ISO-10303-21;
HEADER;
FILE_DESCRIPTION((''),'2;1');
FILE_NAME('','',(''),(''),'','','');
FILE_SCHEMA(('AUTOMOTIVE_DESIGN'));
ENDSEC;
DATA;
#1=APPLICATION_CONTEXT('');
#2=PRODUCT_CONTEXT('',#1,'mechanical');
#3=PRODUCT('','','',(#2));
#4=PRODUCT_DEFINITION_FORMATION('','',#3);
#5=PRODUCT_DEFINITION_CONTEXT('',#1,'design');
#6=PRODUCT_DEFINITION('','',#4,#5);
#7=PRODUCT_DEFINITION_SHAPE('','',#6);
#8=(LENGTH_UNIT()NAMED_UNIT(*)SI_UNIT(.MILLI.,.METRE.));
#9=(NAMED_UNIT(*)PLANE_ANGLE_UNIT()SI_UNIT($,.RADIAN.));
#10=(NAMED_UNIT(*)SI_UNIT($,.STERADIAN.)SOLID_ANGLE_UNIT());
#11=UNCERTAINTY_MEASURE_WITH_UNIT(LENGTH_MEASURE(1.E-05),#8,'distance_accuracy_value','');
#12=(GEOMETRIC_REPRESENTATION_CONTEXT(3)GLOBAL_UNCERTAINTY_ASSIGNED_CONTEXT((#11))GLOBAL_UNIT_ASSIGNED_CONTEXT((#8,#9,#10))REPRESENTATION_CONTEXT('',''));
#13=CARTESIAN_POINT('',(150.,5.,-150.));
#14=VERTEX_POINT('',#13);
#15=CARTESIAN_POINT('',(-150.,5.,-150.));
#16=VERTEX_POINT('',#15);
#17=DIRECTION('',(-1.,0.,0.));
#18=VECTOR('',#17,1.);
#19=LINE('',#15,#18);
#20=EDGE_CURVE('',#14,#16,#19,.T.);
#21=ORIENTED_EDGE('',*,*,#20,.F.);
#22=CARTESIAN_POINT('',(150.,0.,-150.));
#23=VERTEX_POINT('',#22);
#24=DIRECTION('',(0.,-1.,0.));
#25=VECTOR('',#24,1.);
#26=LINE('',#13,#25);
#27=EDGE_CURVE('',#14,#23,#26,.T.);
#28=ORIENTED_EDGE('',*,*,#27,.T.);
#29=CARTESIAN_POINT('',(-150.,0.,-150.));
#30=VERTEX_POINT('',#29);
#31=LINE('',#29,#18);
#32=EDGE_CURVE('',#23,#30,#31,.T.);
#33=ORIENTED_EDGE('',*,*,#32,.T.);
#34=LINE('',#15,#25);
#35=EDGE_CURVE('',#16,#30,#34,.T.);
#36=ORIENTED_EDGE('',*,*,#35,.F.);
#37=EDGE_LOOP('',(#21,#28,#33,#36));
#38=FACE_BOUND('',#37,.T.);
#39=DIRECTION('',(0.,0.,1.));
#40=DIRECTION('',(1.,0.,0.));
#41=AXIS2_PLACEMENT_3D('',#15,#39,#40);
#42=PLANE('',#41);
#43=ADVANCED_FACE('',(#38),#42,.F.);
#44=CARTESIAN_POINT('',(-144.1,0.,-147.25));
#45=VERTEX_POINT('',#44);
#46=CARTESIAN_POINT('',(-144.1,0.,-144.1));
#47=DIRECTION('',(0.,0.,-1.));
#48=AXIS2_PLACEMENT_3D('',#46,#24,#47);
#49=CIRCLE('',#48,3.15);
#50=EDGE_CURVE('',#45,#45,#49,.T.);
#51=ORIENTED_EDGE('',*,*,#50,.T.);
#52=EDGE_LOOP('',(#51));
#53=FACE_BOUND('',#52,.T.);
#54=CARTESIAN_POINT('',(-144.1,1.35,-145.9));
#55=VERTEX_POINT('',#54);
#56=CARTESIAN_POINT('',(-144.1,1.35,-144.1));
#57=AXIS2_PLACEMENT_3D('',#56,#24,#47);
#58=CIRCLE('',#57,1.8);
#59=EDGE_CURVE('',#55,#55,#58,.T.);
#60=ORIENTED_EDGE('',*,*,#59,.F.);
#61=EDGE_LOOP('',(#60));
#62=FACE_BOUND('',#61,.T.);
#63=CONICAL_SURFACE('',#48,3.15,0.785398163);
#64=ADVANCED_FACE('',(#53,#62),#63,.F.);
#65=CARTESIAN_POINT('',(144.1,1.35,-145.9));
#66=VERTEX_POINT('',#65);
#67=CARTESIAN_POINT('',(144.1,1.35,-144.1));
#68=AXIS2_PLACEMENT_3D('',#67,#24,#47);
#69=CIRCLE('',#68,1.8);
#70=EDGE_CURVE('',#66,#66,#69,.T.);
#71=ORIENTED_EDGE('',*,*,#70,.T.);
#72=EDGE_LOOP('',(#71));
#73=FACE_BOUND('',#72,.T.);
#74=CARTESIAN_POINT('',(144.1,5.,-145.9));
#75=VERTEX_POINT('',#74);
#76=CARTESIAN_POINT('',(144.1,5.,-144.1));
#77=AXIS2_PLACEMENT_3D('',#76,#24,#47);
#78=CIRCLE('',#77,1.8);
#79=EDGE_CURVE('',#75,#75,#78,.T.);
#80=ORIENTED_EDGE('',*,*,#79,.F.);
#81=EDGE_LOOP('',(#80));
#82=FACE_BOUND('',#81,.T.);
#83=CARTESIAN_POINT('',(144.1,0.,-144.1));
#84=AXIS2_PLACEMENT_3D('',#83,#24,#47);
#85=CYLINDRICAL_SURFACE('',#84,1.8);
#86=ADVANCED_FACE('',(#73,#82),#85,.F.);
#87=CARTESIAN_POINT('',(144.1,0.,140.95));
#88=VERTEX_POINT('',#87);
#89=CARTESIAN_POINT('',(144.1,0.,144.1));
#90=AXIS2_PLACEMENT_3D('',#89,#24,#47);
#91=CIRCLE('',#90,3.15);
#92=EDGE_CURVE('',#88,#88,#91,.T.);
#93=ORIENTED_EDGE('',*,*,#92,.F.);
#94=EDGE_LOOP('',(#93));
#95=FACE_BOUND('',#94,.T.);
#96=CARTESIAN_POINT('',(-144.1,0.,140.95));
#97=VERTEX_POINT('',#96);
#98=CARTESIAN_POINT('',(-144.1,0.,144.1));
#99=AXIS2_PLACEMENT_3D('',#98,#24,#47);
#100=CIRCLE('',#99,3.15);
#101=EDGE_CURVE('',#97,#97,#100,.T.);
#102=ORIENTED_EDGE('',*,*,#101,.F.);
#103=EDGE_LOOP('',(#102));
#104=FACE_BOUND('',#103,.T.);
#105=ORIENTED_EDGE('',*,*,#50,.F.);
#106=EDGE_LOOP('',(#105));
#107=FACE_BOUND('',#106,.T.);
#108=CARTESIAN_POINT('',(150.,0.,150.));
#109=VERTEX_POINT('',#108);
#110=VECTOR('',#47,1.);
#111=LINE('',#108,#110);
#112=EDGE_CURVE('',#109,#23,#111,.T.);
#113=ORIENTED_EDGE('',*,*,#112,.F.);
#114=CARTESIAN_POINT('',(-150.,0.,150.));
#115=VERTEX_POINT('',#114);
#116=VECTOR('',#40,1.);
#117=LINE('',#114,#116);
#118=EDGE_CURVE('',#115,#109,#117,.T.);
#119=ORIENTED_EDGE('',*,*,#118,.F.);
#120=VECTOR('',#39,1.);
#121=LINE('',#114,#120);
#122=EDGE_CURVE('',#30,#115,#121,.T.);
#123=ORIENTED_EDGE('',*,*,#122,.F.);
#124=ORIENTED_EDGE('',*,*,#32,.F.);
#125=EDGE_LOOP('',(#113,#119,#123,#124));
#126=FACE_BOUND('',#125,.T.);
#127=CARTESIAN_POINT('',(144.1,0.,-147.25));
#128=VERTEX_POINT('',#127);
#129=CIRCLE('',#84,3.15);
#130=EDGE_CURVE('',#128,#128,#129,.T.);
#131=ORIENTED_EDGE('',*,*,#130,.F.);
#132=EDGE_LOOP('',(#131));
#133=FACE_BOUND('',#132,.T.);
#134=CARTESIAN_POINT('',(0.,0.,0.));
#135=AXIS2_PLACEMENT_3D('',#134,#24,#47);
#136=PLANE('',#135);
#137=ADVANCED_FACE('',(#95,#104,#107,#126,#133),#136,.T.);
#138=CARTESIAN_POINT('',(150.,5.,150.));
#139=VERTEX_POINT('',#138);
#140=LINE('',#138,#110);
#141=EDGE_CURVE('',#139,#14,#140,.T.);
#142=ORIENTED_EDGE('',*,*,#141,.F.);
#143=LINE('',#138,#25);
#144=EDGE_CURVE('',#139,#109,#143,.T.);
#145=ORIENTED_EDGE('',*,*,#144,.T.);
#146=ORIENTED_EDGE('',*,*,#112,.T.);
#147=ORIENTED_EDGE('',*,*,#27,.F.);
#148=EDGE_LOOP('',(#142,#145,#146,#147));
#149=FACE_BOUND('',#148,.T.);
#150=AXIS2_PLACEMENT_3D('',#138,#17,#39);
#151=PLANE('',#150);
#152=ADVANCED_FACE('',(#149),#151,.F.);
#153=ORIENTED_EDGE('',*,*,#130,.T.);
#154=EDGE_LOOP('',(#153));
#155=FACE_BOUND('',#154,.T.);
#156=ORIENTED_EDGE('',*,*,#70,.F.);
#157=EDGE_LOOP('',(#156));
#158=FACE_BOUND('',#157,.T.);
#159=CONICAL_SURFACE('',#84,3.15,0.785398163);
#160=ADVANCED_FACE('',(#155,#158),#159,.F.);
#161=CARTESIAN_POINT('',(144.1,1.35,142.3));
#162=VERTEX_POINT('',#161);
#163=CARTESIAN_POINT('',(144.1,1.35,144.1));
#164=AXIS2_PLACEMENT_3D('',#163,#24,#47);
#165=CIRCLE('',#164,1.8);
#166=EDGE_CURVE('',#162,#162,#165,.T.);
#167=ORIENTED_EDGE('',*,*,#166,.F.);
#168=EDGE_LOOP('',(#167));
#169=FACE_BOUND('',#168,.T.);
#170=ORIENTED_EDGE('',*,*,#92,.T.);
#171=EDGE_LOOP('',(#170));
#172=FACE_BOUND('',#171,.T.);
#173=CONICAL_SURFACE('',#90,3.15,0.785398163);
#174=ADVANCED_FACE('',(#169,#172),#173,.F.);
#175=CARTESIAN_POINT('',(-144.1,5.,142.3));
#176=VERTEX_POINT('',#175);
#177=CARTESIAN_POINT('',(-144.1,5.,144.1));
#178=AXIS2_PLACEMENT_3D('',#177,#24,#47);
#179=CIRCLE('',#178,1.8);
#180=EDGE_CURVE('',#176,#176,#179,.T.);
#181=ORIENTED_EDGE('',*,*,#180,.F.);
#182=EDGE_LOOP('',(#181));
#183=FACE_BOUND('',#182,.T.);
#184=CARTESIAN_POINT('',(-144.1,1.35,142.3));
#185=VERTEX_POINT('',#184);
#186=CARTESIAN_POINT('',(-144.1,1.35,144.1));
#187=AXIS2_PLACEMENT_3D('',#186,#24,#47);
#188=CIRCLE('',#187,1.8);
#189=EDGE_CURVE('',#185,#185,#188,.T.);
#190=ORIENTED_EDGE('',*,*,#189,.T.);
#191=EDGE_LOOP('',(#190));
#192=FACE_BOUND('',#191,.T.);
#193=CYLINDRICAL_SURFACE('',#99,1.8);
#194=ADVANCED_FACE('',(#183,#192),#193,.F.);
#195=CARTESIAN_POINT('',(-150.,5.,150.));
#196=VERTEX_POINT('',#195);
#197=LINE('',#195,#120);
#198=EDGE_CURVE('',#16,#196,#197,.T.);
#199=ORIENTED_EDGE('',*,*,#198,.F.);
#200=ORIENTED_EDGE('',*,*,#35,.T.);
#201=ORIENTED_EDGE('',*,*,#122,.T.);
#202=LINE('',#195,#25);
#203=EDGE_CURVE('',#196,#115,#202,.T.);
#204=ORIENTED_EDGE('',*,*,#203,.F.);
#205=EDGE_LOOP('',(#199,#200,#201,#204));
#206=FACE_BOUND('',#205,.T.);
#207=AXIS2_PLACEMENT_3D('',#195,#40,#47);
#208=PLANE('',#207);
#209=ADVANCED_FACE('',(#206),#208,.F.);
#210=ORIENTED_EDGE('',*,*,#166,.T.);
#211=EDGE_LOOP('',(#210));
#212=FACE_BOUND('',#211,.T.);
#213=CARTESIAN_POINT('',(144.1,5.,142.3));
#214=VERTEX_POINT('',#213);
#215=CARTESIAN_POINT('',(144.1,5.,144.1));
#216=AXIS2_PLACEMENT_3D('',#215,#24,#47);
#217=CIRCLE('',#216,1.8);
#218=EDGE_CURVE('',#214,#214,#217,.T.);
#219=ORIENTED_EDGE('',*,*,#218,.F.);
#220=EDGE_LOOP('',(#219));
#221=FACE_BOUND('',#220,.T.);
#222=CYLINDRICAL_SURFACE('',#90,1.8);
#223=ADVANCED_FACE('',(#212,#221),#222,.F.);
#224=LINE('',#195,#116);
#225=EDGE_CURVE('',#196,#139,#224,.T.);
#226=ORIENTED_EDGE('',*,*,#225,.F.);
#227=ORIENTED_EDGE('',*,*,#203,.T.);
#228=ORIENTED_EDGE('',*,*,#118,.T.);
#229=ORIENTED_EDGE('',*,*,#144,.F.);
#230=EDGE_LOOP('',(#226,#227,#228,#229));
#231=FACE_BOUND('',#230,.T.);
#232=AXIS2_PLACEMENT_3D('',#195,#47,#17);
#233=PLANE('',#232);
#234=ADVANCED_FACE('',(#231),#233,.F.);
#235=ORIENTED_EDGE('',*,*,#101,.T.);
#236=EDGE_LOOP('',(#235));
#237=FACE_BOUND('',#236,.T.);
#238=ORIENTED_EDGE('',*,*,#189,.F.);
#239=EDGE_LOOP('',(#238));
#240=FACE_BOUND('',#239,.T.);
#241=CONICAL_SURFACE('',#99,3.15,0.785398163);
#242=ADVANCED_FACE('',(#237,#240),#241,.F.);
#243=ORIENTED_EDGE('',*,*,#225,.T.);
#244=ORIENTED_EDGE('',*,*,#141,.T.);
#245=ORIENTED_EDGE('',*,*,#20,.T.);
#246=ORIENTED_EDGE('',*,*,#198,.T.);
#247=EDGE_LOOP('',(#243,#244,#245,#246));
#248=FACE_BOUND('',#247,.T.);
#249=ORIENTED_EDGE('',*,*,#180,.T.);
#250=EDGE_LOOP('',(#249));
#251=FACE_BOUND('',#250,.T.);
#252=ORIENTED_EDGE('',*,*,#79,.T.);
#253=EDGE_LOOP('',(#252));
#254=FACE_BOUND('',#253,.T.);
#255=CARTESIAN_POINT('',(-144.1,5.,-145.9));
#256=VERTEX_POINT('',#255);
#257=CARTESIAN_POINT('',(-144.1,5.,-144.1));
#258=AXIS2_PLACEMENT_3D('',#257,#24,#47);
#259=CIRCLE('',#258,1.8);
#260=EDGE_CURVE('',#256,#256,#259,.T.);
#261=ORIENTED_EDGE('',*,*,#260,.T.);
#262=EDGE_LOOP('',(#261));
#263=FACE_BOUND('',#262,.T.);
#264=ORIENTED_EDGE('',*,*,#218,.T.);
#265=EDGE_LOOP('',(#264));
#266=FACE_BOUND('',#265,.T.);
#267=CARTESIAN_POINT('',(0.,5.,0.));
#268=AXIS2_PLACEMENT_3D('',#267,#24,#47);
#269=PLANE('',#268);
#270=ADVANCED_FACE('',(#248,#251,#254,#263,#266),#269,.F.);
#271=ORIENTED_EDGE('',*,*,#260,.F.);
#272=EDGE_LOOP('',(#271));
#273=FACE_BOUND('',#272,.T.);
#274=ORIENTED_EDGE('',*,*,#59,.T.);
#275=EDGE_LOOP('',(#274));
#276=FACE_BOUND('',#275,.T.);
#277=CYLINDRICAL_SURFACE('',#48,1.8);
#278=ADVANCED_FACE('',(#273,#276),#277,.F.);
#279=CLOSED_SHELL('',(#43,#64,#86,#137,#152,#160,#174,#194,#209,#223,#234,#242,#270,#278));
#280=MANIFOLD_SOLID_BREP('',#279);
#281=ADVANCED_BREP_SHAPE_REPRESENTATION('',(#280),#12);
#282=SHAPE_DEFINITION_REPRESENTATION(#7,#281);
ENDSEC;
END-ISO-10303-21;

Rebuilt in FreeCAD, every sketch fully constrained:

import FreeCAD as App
import Part
import Sketcher

V = App.Vector
Q = App.Units.Quantity


def add_polygon(sketch, points):
    """Adds a closed chain of lines whose ends are joined by coincident constraints."""
    first, n = sketch.GeometryCount, len(points)
    for a, b in zip(points, points[1:] + points[:1]):
        sketch.addGeometry(Part.LineSegment(App.Vector(*a, 0), App.Vector(*b, 0)), False)
    for i in range(n):
        sketch.addConstraint(Sketcher.Constraint("Coincident", first + i, 2, first + (i + 1) % n, 1))

doc = App.newDocument("Part")
body = doc.addObject("PartDesign::Body", "Body")

# Sketch on XZ plane
sketch1 = body.newObject("Sketcher::SketchObject", "Sketch")
sketch1.AttachmentSupport = (doc.getObject("XZ_Plane"), [""])
sketch1.MapMode = "FlatFace"
add_polygon(sketch1, [(-150, -150), (-150, 150), (150, 150), (150, -150)])  # lines 0-3
sketch1.addConstraint([
    Sketcher.Constraint("Vertical", 0),
    Sketcher.Constraint("Horizontal", 1),
    Sketcher.Constraint("Vertical", 2),
    Sketcher.Constraint("Horizontal", 3),
    Sketcher.Constraint("Symmetric", 0, 2, 2, 2, -1, 1),
    Sketcher.Constraint("Equal", 3, 0),
    Sketcher.Constraint("DistanceX", 1, 1, 1, 2, Q("300 mm")),
])
pad1 = body.newObject("PartDesign::Pad", "Pad")
pad1.Profile = sketch1
pad1.Length = 5
pad1.Reversed = True

# Sketch on XZ plane
sketch2 = body.newObject("Sketcher::SketchObject", "Sketch001")
sketch2.AttachmentSupport = (doc.getObject("XZ_Plane"), [""])
sketch2.MapMode = "FlatFace"
sketch2.addGeometry([
    Part.Circle(V(144.1, 144.1, 0), V(0, 0, 1), 1.8),
    Part.Circle(V(-144.1, 144.1, 0), V(0, 0, 1), 1.8),
    Part.Circle(V(-144.1, -144.1, 0), V(0, 0, 1), 1.8),
    Part.Circle(V(144.1, -144.1, 0), V(0, 0, 1), 1.8),
], False)
sketch2.addConstraint([
    Sketcher.Constraint("Equal", 0, 1),
    Sketcher.Constraint("Equal", 1, 2),
    Sketcher.Constraint("Equal", 2, 3),
    Sketcher.Constraint("Symmetric", 0, 3, 2, 3, -1, 1),
    Sketcher.Constraint("Symmetric", 1, 3, 3, 3, -1, 1),
    Sketcher.Constraint("Symmetric", 0, 3, 1, 3, -2),
    Sketcher.Constraint("Diameter", 0, Q("3.6 mm")),
    Sketcher.Constraint("DistanceX", -1, 1, 0, 3, Q("144.1 mm")),
    Sketcher.Constraint("DistanceY", -1, 1, 0, 3, Q("144.1 mm")),
])
doc.recompute()
hole = body.newObject("PartDesign::Hole", "Hole")
hole.Profile = sketch2
hole.ThreadType = "None"
hole.Diameter = 3.6
hole.DepthType = "ThroughAll"
hole.HoleCutType = "Countersink"
hole.HoleCutDiameter = 6.3
hole.HoleCutCountersinkAngle = 90

doc.recompute()
